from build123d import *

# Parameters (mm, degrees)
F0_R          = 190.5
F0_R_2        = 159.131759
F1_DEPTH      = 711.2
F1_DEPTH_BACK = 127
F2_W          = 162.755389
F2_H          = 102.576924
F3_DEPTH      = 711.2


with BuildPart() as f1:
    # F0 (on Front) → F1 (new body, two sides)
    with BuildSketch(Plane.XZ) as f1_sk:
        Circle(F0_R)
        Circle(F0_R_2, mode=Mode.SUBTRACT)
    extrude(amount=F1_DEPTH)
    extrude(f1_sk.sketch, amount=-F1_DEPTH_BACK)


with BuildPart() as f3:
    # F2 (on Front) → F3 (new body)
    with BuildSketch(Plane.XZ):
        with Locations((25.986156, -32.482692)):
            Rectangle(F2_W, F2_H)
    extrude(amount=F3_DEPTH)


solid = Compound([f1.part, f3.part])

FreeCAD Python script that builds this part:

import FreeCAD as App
import Part
import Sketcher
Q = App.Units.Quantity

doc = App.newDocument("Part")
body = doc.addObject("PartDesign::Body", "Body")

# Sketch on XZ plane
sketch1 = body.newObject("Sketcher::SketchObject", "Sketch")
sketch1.AttachmentSupport = (doc.getObject("XZ_Plane"), [""])
sketch1.MapMode = "FlatFace"
sketch1.addGeometry([
    Part.Circle(App.Vector(0, 0, 0), App.Vector(0, 0, 1), 190),
    Part.Circle(App.Vector(0, 0, 0), App.Vector(0, 0, 1), 159),
], False)
sketch1.addConstraint([
    Sketcher.Constraint("Coincident", 0, 3, -1, 1),
    Sketcher.Constraint("Coincident", 1, 3, -1, 1),
    Sketcher.Constraint("Diameter", 0, Q("15 in")),
    Sketcher.Constraint("Diameter", 1, Q("318.263518 mm")),
])
pad1 = body.newObject("PartDesign::Pad", "Pad")
pad1.Profile = sketch1
pad1.Type = "TwoLengths"
pad1.Length = Q("28 in")
pad1.Length2 = Q("5 in")
body2 = doc.addObject("PartDesign::Body", "Body001")

# Sketch on XZ plane
sketch2 = body2.newObject("Sketcher::SketchObject", "Sketch001")
sketch2.AttachmentSupport = (doc.getObject("XZ_Plane001"), [""])
sketch2.MapMode = "FlatFace"
sketch2.addGeometry([
    Part.LineSegment(App.Vector(-55, 19, 0), App.Vector(-55, -84, 0)),
    Part.LineSegment(App.Vector(-55, -84, 0), App.Vector(107, -84, 0)),
    Part.LineSegment(App.Vector(107, -84, 0), App.Vector(107, 19, 0)),
    Part.LineSegment(App.Vector(107, 19, 0), App.Vector(-55, 19, 0)),
], False)
sketch2.addConstraint([
    Sketcher.Constraint("Coincident", 0, 2, 1, 1),
    Sketcher.Constraint("Coincident", 1, 2, 2, 1),
    Sketcher.Constraint("Coincident", 2, 2, 3, 1),
    Sketcher.Constraint("Coincident", 3, 2, 0, 1),
    Sketcher.Constraint("Vertical", 0),
    Sketcher.Constraint("Horizontal", 1),
    Sketcher.Constraint("Vertical", 2),
    Sketcher.Constraint("Horizontal", 3),
    Sketcher.Constraint("DistanceX", 1, 1, 1, 2, Q("162.755389 mm")),
    Sketcher.Constraint("DistanceY", 0, 2, 0, 1, Q("102.576924 mm")),
    Sketcher.Constraint("DistanceX", 0, 2, -1, 1, Q("55.391539 mm")),
    Sketcher.Constraint("DistanceY", -1, 1, 2, 2, Q("18.80577 mm")),
])
pad2 = body2.newObject("PartDesign::Pad", "Pad001")
pad2.Profile = sketch2
pad2.Length = Q("28 in")

doc.recompute()
